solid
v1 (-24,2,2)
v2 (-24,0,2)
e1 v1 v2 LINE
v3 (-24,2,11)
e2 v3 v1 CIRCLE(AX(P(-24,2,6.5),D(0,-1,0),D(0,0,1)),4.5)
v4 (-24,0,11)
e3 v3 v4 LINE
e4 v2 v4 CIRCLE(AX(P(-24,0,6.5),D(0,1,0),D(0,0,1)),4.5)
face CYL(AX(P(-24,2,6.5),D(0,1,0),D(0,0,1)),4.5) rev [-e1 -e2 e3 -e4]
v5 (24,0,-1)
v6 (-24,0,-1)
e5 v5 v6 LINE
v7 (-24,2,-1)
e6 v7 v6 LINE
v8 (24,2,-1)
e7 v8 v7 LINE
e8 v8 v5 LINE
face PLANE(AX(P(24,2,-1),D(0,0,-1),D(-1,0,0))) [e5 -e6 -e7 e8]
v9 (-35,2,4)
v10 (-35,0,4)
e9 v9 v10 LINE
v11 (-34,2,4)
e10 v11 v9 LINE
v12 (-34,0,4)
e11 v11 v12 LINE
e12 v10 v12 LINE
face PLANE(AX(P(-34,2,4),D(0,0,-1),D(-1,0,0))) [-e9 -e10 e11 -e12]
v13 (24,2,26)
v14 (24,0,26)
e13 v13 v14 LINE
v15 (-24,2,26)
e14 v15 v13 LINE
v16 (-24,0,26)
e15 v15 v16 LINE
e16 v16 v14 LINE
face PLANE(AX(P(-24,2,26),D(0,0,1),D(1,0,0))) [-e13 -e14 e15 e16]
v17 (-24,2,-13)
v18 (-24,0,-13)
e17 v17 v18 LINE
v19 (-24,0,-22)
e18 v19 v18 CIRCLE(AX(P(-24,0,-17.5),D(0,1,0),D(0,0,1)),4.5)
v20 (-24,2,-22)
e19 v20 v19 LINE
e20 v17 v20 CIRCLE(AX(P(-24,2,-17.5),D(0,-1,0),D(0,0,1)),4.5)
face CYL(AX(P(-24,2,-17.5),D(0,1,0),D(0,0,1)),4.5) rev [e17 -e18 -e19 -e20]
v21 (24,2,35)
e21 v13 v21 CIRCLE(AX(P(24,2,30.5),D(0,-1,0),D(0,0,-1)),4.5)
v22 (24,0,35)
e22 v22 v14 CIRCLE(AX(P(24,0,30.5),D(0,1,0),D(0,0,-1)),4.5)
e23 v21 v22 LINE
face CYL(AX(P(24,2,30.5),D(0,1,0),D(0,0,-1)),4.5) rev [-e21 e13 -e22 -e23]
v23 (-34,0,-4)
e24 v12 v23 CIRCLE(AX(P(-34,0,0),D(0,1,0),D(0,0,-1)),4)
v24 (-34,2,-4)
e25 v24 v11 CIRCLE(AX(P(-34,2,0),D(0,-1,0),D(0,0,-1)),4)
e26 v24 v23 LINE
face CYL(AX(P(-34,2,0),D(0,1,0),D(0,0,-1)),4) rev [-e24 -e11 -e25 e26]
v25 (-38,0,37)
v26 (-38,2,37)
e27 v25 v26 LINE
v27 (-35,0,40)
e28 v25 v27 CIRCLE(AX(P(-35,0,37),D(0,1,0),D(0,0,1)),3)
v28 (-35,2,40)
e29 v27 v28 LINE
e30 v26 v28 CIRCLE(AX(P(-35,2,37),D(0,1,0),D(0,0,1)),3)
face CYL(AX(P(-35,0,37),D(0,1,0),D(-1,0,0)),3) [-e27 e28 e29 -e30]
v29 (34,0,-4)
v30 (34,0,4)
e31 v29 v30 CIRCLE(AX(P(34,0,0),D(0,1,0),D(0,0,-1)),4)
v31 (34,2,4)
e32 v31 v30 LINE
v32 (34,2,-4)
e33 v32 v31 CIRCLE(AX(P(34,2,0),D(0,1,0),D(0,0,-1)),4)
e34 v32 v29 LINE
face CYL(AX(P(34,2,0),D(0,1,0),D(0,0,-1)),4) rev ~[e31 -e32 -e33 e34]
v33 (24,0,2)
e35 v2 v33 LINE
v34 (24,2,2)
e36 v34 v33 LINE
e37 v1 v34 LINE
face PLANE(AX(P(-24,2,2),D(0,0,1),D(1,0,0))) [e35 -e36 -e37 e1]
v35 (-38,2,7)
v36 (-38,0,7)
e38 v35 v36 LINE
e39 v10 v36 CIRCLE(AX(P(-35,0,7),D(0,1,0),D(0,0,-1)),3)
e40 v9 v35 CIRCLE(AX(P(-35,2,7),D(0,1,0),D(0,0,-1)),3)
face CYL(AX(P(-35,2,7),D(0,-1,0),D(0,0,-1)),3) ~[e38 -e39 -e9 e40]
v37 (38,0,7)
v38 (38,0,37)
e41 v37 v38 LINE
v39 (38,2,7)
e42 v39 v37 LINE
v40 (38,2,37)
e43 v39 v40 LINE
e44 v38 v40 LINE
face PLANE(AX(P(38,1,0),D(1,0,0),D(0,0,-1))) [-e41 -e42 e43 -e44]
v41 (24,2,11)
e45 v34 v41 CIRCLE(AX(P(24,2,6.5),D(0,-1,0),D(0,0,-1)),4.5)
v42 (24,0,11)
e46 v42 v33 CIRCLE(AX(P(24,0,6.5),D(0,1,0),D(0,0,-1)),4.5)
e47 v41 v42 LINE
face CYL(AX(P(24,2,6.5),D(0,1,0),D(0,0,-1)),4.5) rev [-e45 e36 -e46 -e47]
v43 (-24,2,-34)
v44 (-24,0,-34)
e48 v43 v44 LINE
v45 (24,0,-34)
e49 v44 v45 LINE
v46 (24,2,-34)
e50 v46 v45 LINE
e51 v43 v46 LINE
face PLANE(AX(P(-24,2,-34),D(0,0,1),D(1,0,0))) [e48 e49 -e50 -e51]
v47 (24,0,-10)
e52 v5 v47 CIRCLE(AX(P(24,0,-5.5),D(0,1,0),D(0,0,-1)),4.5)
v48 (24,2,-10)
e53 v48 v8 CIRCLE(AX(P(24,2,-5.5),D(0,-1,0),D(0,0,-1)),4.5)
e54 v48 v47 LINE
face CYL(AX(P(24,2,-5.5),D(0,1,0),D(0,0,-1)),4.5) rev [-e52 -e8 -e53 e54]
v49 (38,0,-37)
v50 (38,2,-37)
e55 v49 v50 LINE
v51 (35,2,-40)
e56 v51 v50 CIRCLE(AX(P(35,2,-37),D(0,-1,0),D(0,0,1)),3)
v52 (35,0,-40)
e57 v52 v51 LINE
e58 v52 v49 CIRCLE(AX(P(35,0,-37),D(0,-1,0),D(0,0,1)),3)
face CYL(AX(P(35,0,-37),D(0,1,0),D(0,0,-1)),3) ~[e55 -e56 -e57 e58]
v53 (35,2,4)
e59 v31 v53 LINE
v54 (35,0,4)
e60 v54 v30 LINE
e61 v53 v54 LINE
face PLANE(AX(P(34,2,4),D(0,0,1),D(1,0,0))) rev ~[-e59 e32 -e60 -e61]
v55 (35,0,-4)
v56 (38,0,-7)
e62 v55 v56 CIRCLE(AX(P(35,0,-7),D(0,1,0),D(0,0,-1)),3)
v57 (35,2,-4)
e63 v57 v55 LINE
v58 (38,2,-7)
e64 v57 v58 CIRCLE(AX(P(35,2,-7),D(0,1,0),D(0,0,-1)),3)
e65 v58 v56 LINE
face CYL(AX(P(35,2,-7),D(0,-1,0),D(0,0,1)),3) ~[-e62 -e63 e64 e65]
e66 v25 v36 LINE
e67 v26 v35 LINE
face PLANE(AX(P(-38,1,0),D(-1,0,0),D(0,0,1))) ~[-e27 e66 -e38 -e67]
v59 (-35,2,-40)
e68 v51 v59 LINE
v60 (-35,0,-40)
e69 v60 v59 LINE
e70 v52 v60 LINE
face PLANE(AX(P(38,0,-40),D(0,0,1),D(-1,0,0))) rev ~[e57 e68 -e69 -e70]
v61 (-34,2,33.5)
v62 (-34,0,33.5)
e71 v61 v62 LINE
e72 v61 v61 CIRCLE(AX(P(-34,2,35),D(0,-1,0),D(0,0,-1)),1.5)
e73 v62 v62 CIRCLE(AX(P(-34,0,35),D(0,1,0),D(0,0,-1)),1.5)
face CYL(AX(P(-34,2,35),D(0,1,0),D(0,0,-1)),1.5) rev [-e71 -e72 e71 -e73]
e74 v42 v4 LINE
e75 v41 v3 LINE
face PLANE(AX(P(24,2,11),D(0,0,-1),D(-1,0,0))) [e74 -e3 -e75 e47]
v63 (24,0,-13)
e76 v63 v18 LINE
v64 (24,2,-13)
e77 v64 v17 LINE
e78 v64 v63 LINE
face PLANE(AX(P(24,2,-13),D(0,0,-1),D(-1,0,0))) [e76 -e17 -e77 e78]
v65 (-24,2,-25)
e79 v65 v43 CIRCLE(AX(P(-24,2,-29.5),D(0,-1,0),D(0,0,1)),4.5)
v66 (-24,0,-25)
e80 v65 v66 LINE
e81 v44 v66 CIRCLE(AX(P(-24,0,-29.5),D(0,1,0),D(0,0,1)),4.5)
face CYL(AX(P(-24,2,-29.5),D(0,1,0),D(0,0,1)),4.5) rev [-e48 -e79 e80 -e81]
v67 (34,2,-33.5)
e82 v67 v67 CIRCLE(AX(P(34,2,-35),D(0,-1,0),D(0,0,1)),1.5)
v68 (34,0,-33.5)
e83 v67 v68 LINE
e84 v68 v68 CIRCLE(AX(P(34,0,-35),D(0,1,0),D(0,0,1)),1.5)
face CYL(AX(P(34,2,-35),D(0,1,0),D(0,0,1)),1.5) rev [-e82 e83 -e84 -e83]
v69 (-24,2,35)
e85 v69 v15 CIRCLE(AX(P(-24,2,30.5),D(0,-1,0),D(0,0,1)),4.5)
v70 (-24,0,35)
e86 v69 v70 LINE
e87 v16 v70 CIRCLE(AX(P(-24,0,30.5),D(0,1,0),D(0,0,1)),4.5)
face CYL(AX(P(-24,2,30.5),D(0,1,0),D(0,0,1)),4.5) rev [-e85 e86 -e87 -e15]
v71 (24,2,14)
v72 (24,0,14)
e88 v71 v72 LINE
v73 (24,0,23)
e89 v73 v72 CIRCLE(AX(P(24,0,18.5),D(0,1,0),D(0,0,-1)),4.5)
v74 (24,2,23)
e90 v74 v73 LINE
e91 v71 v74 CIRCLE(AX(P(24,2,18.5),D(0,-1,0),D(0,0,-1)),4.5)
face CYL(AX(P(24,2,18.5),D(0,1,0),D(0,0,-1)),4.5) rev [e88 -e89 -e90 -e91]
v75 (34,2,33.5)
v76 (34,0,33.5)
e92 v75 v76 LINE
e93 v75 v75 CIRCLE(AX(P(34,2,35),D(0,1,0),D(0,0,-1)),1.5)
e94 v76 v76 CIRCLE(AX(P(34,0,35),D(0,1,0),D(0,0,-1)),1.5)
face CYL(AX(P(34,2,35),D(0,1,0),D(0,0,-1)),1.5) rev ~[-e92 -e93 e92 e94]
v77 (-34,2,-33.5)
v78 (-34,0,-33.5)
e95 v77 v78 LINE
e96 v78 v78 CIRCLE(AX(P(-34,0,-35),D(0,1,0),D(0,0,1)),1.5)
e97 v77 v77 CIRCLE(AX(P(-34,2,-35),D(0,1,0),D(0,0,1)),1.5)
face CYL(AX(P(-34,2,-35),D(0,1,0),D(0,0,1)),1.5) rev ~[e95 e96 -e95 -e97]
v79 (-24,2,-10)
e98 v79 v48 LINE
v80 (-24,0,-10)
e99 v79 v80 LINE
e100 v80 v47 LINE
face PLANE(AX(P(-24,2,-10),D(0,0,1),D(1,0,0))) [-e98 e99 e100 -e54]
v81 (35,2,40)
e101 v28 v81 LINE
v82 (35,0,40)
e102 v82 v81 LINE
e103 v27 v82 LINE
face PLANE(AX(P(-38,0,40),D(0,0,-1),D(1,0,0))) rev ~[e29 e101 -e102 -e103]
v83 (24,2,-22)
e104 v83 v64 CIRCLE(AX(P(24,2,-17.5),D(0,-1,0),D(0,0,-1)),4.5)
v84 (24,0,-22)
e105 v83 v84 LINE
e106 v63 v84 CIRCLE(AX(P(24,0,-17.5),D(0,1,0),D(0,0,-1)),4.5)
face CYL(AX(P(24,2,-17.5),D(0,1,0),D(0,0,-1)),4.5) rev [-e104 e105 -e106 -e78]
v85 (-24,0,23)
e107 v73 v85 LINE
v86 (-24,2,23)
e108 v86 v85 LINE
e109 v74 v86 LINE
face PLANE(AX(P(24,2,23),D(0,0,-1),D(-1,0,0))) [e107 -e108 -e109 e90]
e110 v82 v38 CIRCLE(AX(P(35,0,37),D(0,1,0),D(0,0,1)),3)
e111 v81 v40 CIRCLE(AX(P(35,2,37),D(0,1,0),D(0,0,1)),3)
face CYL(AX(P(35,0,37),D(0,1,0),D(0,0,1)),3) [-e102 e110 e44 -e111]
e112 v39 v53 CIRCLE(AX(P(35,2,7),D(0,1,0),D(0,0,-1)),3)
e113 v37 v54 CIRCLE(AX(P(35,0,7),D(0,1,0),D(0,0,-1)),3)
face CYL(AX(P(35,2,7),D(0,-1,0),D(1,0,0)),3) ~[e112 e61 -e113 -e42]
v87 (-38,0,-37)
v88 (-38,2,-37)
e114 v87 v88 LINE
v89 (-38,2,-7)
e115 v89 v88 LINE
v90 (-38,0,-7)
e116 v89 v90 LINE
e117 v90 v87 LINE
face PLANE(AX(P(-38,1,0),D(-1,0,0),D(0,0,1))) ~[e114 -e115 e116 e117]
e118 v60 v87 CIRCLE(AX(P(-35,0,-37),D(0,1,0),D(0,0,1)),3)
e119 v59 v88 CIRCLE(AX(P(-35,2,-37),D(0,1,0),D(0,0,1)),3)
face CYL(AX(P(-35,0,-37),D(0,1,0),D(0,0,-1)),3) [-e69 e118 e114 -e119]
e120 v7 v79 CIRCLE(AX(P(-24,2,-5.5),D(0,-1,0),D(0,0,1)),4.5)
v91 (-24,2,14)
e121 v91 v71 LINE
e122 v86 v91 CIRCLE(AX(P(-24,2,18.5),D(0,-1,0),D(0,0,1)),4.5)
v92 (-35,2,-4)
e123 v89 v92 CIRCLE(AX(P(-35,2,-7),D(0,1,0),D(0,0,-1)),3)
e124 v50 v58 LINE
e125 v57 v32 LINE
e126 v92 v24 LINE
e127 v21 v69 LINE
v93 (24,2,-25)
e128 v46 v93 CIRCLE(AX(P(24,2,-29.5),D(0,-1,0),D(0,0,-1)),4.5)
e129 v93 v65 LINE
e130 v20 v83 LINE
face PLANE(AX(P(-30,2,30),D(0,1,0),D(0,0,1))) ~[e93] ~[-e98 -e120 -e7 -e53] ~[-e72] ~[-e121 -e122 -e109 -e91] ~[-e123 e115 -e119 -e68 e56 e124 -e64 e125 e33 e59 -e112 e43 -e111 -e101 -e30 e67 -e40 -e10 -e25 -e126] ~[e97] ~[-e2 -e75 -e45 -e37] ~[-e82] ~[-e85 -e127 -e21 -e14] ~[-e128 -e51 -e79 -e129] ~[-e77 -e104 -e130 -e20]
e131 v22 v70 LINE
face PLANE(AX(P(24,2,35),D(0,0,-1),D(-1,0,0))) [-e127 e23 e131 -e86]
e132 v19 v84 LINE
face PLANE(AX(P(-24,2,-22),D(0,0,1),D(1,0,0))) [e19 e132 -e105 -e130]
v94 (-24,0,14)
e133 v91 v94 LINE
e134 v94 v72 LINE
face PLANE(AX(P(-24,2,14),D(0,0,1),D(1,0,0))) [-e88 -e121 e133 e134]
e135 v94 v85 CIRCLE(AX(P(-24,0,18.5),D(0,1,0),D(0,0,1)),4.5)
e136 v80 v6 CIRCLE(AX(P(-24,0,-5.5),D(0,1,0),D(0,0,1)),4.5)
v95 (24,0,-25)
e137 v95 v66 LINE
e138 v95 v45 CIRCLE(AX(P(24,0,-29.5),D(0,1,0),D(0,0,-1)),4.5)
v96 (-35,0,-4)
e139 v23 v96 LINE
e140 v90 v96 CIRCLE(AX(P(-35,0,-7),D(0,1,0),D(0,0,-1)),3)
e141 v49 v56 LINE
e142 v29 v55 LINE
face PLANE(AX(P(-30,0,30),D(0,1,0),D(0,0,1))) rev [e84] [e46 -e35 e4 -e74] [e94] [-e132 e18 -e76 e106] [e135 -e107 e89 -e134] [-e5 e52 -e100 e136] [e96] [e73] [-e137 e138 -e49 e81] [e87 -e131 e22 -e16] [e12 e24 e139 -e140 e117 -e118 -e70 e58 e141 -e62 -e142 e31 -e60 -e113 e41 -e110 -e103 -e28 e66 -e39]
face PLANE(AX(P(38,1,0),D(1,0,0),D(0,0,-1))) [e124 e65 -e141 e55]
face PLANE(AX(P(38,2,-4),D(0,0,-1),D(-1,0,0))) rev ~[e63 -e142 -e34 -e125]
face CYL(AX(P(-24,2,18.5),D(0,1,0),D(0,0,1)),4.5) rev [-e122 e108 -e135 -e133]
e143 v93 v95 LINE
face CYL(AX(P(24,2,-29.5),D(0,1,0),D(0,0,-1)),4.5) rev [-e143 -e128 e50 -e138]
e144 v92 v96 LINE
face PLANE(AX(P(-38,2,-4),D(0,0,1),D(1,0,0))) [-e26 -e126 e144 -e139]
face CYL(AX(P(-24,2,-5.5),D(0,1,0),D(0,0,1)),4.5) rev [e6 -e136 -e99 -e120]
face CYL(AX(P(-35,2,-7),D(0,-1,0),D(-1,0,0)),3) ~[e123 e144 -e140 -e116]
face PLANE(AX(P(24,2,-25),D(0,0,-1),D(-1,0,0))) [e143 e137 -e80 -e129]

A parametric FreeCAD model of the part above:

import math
import FreeCAD as App
import Part
import Sketcher
from FreeCAD import Vector


def edges_at(feature, points):
    """Names of the edges that pass closest to the given points."""
    edges = feature.Shape.Edges
    near = lambda p: min(range(len(edges)), key=lambda i: edges[i].distToShape(Part.Vertex(*p))[0])
    return sorted({f"Edge{near(p) + 1}" for p in points})

doc = App.newDocument("Part")
body = doc.addObject("PartDesign::Body", "Body")

sketch1 = doc.addObject("Sketcher::SketchObject", "Sketch")
body.addObject(sketch1)
sketch1.AttachmentSupport = (doc.XZ_Plane, [""])
sketch1.MapMode = "FlatFace"
sketch1.addGeometry([
    Part.LineSegment(Vector(-38, 30, 0), Vector(-38, 40, 0)),
    Part.LineSegment(Vector(-38, 40, 0), Vector(38, 40, 0)),
    Part.LineSegment(Vector(38, 40, 0), Vector(38, 30, 0)),
    Part.LineSegment(Vector(38, 30, 0), Vector(30, 30, 0)),
    Part.LineSegment(Vector(30, 30, 0), Vector(30, -30, 0)),
    Part.LineSegment(Vector(30, -30, 0), Vector(38, -30, 0)),
    Part.LineSegment(Vector(38, -30, 0), Vector(38, -40, 0)),
    Part.LineSegment(Vector(38, -40, 0), Vector(-38, -40, 0)),
    Part.LineSegment(Vector(-38, -40, 0), Vector(-38, -30, 0)),
    Part.LineSegment(Vector(-38, -30, 0), Vector(-30, -30, 0)),
    Part.LineSegment(Vector(-30, -30, 0), Vector(-30, 30, 0)),
    Part.LineSegment(Vector(-30, 30, 0), Vector(-38, 30, 0)),
], False)
sketch1.addConstraint([
    Sketcher.Constraint("Coincident", 0, 2, 1, 1),
    Sketcher.Constraint("Coincident", 1, 2, 2, 1),
    Sketcher.Constraint("Coincident", 2, 2, 3, 1),
    Sketcher.Constraint("Coincident", 3, 2, 4, 1),
    Sketcher.Constraint("Coincident", 4, 2, 5, 1),
    Sketcher.Constraint("Coincident", 5, 2, 6, 1),
    Sketcher.Constraint("Coincident", 6, 2, 7, 1),
    Sketcher.Constraint("Coincident", 7, 2, 8, 1),
    Sketcher.Constraint("Coincident", 8, 2, 9, 1),
    Sketcher.Constraint("Coincident", 9, 2, 10, 1),
    Sketcher.Constraint("Coincident", 10, 2, 11, 1),
    Sketcher.Constraint("Coincident", 11, 2, 0, 1),
    Sketcher.Constraint("Vertical", 0),
    Sketcher.Constraint("Horizontal", 1),
    Sketcher.Constraint("Vertical", 2),
    Sketcher.Constraint("Horizontal", 3),
    Sketcher.Constraint("Vertical", 4),
    Sketcher.Constraint("Horizontal", 5),
    Sketcher.Constraint("Vertical", 6),
    Sketcher.Constraint("Horizontal", 7),
    Sketcher.Constraint("Vertical", 8),
    Sketcher.Constraint("Horizontal", 9),
    Sketcher.Constraint("Vertical", 10),
    Sketcher.Constraint("Horizontal", 11),
    Sketcher.Constraint("Symmetric", 0, 2, 6, 2, -1, 1),
    Sketcher.Constraint("Symmetric", 2, 2, 8, 2, -1, 1),
    Sketcher.Constraint("Symmetric", 4, 2, 10, 2, -1, 1),
    Sketcher.Constraint("Symmetric", 5, 2, 8, 2, -2),
    Sketcher.Constraint("DistanceX", 1, 1, 1, 2, 76.0),
    Sketcher.Constraint("DistanceX", 3, 2, 3, 1, 8.0),
    Sketcher.Constraint("DistanceY", 0, 1, 0, 2, 10.0),
    Sketcher.Constraint("DistanceY", 4, 2, 4, 1, 60.0),
])
pad1 = doc.addObject("PartDesign::Pad", "Pad")
body.addObject(pad1)
pad1.Profile = sketch1
pad1.Length = 2
pad1.Reversed = True

sketch2 = doc.addObject("Sketcher::SketchObject", "Sketch001")
body.addObject(sketch2)
sketch2.AttachmentSupport = (doc.XZ_Plane, [""])
sketch2.MapMode = "FlatFace"
sketch2.AttachmentOffset = App.Placement(Vector(0, 0, -2), App.Rotation())
sketch2.addGeometry(Part.Circle(Vector(-34, -35, 0), Vector(0, 0, 1), 1.5), False)
sketch2.addConstraint([
    Sketcher.Constraint("Diameter", 0, 3.0),
    Sketcher.Constraint("DistanceX", 0, 3, -1, 1, 34.0),
    Sketcher.Constraint("DistanceY", 0, 3, -1, 1, 35.0),
])
pocket1 = doc.addObject("PartDesign::Pocket", "Pocket")
body.addObject(pocket1)
pocket1.Profile = sketch2
pocket1.Type = "ThroughAll"
pocket1.Reversed = True
doc.recompute()

mirrored = doc.addObject("PartDesign::Mirrored", "Mirrored")
body.addObject(mirrored)
mirrored.Originals = [pocket1]
mirrored.MirrorPlane = (doc.YZ_Plane, [""])
body.Tip = mirrored
doc.recompute()

mirrored2 = doc.addObject("PartDesign::Mirrored", "Mirrored001")
body.addObject(mirrored2)
mirrored2.Originals = [pocket1]
mirrored2.MirrorPlane = (doc.XY_Plane, [""])
body.Tip = mirrored2

sketch3 = doc.addObject("Sketcher::SketchObject", "Sketch002")
body.addObject(sketch3)
sketch3.AttachmentSupport = (doc.XZ_Plane, [""])
sketch3.MapMode = "FlatFace"
sketch3.AttachmentOffset = App.Placement(Vector(0, 0, -2), App.Rotation())
sketch3.addGeometry(Part.Circle(Vector(34, 35, 0), Vector(0, 0, 1), 1.5), False)
sketch3.addConstraint([
    Sketcher.Constraint("Diameter", 0, 3.0),
    Sketcher.Constraint("DistanceX", -1, 1, 0, 3, 34.0),
    Sketcher.Constraint("DistanceY", -1, 1, 0, 3, 35.0),
])
pocket2 = doc.addObject("PartDesign::Pocket", "Pocket001")
body.addObject(pocket2)
pocket2.Profile = sketch3
pocket2.Type = "ThroughAll"
pocket2.Reversed = True

sketch4 = doc.addObject("Sketcher::SketchObject", "Sketch003")
body.addObject(sketch4)
sketch4.AttachmentSupport = (doc.XZ_Plane, [""])
sketch4.MapMode = "FlatFace"
sketch4.AttachmentOffset = App.Placement(Vector(0, 0, -2), App.Rotation())
sketch4.addGeometry([
    Part.LineSegment(Vector(24, -34, 0), Vector(-24, -34, 0)),
    Part.ArcOfCircle(Part.Circle(Vector(-24, -29.5, 0), Vector(0, 0, 1), 4.5), math.radians(90), math.radians(270)),
    Part.LineSegment(Vector(-24, -25, 0), Vector(24, -25, 0)),
    Part.ArcOfCircle(Part.Circle(Vector(24, -29.5, 0), Vector(0, 0, 1), 4.5), math.radians(-90), math.radians(90)),
], False)
sketch4.addConstraint([
    Sketcher.Constraint("Tangent", 0, 2, 1, 2),
    Sketcher.Constraint("Tangent", 1, 1, 2, 1),
    Sketcher.Constraint("Tangent", 2, 2, 3, 2),
    Sketcher.Constraint("Tangent", 3, 1, 0, 1),
    Sketcher.Constraint("Horizontal", 0),
    Sketcher.Constraint("Horizontal", 2),
    Sketcher.Constraint("Radius", 1, 4.5),
    Sketcher.Constraint("DistanceX", 0, 2, 0, 1, 48.0),
    Sketcher.Constraint("DistanceX", 1, 3, -1, 1, 24.0),
    Sketcher.Constraint("DistanceY", 0, 2, -1, 1, 34.0),
])
pocket3 = doc.addObject("PartDesign::Pocket", "Pocket002")
body.addObject(pocket3)
pocket3.Profile = sketch4
pocket3.Type = "ThroughAll"
pocket3.Reversed = True
doc.recompute()

linearpattern = doc.addObject("PartDesign::LinearPattern", "LinearPattern")
body.addObject(linearpattern)
linearpattern.Originals = [pocket3]
linearpattern.Direction = (doc.Z_Axis, [""])
linearpattern.Mode = "offset"
linearpattern.Offset = 12
linearpattern.Occurrences = 6
body.Tip = linearpattern

sketch5 = doc.addObject("Sketcher::SketchObject", "Sketch004")
body.addObject(sketch5)
sketch5.AttachmentSupport = (doc.YZ_Plane, [""])
sketch5.MapMode = "FlatFace"
sketch5.AttachmentOffset = App.Placement(Vector(0, 0, 30), App.Rotation())
sketch5.addGeometry([
    Part.LineSegment(Vector(2, 30, 0), Vector(0, 30, 0)),
    Part.LineSegment(Vector(0, 30, 0), Vector(0, -30, 0)),
    Part.LineSegment(Vector(0, -30, 0), Vector(2, -30, 0)),
    Part.LineSegment(Vector(2, -30, 0), Vector(2, 30, 0)),
], False)
sketch5.addConstraint([
    Sketcher.Constraint("Coincident", 0, 2, 1, 1),
    Sketcher.Constraint("Coincident", 1, 2, 2, 1),
    Sketcher.Constraint("Coincident", 2, 2, 3, 1),
    Sketcher.Constraint("Coincident", 3, 2, 0, 1),
    Sketcher.Constraint("Horizontal", 0),
    Sketcher.Constraint("Vertical", 1),
    Sketcher.Constraint("Horizontal", 2),
    Sketcher.Constraint("Vertical", 3),
    Sketcher.Constraint("Symmetric", 0, 2, 1, 2, -1, 1),
    Sketcher.Constraint("DistanceX", 0, 2, 0, 1, 2.0),
    Sketcher.Constraint("DistanceY", 1, 2, 1, 1, 60.0),
])
pad2 = doc.addObject("PartDesign::Pad", "Pad001")
body.addObject(pad2)
pad2.Profile = sketch5
pad2.Length = 8
doc.recompute()

mirrored3 = doc.addObject("PartDesign::Mirrored", "Mirrored002")
body.addObject(mirrored3)
mirrored3.Originals = [pad2]
mirrored3.MirrorPlane = (doc.YZ_Plane, [""])
body.Tip = mirrored3

sketch6 = doc.addObject("Sketcher::SketchObject", "Sketch005")
body.addObject(sketch6)
sketch6.AttachmentSupport = (doc.XZ_Plane, [""])
sketch6.MapMode = "FlatFace"
sketch6.AttachmentOffset = App.Placement(Vector(0, 0, -2), App.Rotation())
sketch6.addGeometry([
    Part.LineSegment(Vector(-34, -4, 0), Vector(-38, -4, 0)),
    Part.LineSegment(Vector(-38, -4, 0), Vector(-38, 4, 0)),
    Part.LineSegment(Vector(-38, 4, 0), Vector(-34, 4, 0)),
    Part.ArcOfCircle(Part.Circle(Vector(-34, 0, 0), Vector(0, 0, 1), 4), math.radians(-90), math.radians(90)),
    Part.LineSegment(Vector(38, 4, 0), Vector(38, -4, 0)),
    Part.LineSegment(Vector(38, -4, 0), Vector(34, -4, 0)),
    Part.ArcOfCircle(Part.Circle(Vector(34, 0, 0), Vector(0, 0, 1), 4), math.radians(90), math.radians(270)),
    Part.LineSegment(Vector(34, 4, 0), Vector(38, 4, 0)),
], False)
sketch6.addConstraint([
    Sketcher.Constraint("Coincident", 0, 2, 1, 1),
    Sketcher.Constraint("Coincident", 1, 2, 2, 1),
    Sketcher.Constraint("Tangent", 2, 2, 3, 2),
    Sketcher.Constraint("Tangent", 3, 1, 0, 1),
    Sketcher.Constraint("Coincident", 4, 2, 5, 1),
    Sketcher.Constraint("Tangent", 5, 2, 6, 2),
    Sketcher.Constraint("Tangent", 6, 1, 7, 1),
    Sketcher.Constraint("Coincident", 7, 2, 4, 1),
    Sketcher.Constraint("Horizontal", 0),
    Sketcher.Constraint("Vertical", 1),
    Sketcher.Constraint("Horizontal", 2),
    Sketcher.Constraint("Vertical", 4),
    Sketcher.Constraint("Horizontal", 5),
    Sketcher.Constraint("Horizontal", 7),
    Sketcher.Constraint("Equal", 3, 6),
    Sketcher.Constraint("Symmetric", 3, 3, 6, 3, -1, 1),
    Sketcher.Constraint("Symmetric", 0, 2, 4, 2, -2),
    Sketcher.Constraint("Radius", 3, 4.0),
    Sketcher.Constraint("DistanceX", 0, 2, 0, 1, 4.0),
    Sketcher.Constraint("DistanceX", 3, 3, -1, 1, 34.0),
])
pocket4 = doc.addObject("PartDesign::Pocket", "Pocket003")
body.addObject(pocket4)
pocket4.Profile = sketch6
pocket4.Type = "ThroughAll"
pocket4.Reversed = True
doc.recompute()

fillet = doc.addObject("PartDesign::Fillet", "Fillet")
body.addObject(fillet)
fillet.Base = (pocket4, edges_at(pocket4, [
    (-38, 1, 4),
    (-38, 1, -4),
    (38, 1, -4),
    (38, 1, 4),
    (38, 1, 40),
    (-38, 1, 40),
    (-38, 1, -40),
    (38, 1, -40),
]))
fillet.Radius = 3

doc.recompute()
